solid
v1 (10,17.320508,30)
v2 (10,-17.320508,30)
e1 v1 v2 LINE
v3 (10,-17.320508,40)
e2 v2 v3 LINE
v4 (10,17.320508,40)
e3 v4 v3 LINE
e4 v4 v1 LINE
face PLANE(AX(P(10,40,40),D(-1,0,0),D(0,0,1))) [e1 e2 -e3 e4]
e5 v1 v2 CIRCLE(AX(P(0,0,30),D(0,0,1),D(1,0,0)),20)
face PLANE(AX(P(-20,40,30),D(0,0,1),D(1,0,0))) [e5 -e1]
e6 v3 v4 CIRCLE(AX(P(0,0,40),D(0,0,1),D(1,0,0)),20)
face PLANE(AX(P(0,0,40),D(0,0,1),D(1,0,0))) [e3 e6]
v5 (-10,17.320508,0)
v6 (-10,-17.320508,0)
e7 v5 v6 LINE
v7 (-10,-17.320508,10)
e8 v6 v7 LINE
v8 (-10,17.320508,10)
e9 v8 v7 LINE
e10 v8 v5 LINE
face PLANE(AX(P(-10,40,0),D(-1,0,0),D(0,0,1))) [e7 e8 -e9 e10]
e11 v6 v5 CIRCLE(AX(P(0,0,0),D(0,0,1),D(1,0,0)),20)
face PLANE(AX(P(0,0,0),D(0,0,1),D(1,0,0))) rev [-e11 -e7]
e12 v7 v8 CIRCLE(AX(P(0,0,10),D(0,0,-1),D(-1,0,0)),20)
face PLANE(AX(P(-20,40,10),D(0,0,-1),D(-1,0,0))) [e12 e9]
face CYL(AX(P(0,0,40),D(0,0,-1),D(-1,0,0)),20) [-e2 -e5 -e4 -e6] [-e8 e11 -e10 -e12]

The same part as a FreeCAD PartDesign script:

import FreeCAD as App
import Part
import Sketcher
Q = App.Units.Quantity

doc = App.newDocument("Part")
body = doc.addObject("PartDesign::Body", "Body")

# Sketch on XY plane
sketch1 = body.newObject("Sketcher::SketchObject", "Sketch")
sketch1.AttachmentSupport = (doc.getObject("XY_Plane"), [""])
sketch1.MapMode = "FlatFace"
sketch1.addGeometry(Part.Circle(App.Vector(0, 0, 0), App.Vector(0, 0, 1), 20), False)
sketch1.addConstraint([
    Sketcher.Constraint("Coincident", 0, 3, -1, 1),
    Sketcher.Constraint("Diameter", 0, Q("40 mm")),
])
pad1 = body.newObject("PartDesign::Pad", "Pad")
pad1.Profile = sketch1
pad1.Length = 40

# Sketch on XZ plane
sketch2 = body.newObject("Sketcher::SketchObject", "Sketch001")
sketch2.AttachmentSupport = (doc.getObject("XZ_Plane"), [""])
sketch2.MapMode = "FlatFace"
sketch2.addGeometry([
    Part.LineSegment(App.Vector(-20, 30, 0), App.Vector(-20, 40, 0)),  # 0
    Part.LineSegment(App.Vector(-20, 40, 0), App.Vector(10, 40, 0)),  # 1
    Part.LineSegment(App.Vector(10, 40, 0), App.Vector(10, 30, 0)),  # 2
    Part.LineSegment(App.Vector(10, 30, 0), App.Vector(-20, 30, 0)),  # 3
    Part.LineSegment(App.Vector(-20, 0, 0), App.Vector(-20, 10, 0)),  # 4
    Part.LineSegment(App.Vector(-20, 10, 0), App.Vector(-10, 10, 0)),  # 5
    Part.LineSegment(App.Vector(-10, 10, 0), App.Vector(-10, 0, 0)),  # 6
    Part.LineSegment(App.Vector(-10, 0, 0), App.Vector(-20, 0, 0)),  # 7
], False)
sketch2.addConstraint([
    Sketcher.Constraint("Coincident", 0, 2, 1, 1),
    Sketcher.Constraint("Coincident", 1, 2, 2, 1),
    Sketcher.Constraint("Coincident", 2, 2, 3, 1),
    Sketcher.Constraint("Coincident", 3, 2, 0, 1),
    Sketcher.Constraint("Coincident", 4, 2, 5, 1),
    Sketcher.Constraint("Coincident", 5, 2, 6, 1),
    Sketcher.Constraint("Coincident", 6, 2, 7, 1),
    Sketcher.Constraint("Coincident", 7, 2, 4, 1),
    Sketcher.Constraint("Vertical", 0),
    Sketcher.Constraint("Horizontal", 1),
    Sketcher.Constraint("Vertical", 2),
    Sketcher.Constraint("Horizontal", 3),
    Sketcher.Constraint("Vertical", 4),
    Sketcher.Constraint("Horizontal", 5),
    Sketcher.Constraint("Vertical", 6),
    Sketcher.Constraint("Horizontal", 7),
    Sketcher.Constraint("PointOnObject", 6, 2, -1),
    Sketcher.Constraint("Vertical", 3, 2, 4, 2),
    Sketcher.Constraint("Equal", 7, 0),
    Sketcher.Constraint("Equal", 2, 4),
    Sketcher.Constraint("DistanceX", 1, 1, 1, 2, Q("30 mm")),
    Sketcher.Constraint("DistanceX", 5, 1, 5, 2, Q("10 mm")),
    Sketcher.Constraint("DistanceX", 0, 2, -1, 1, Q("20 mm")),
    Sketcher.Constraint("DistanceY", -1, 1, 0, 2, Q("40 mm")),
])
pocket1 = body.newObject("PartDesign::Pocket", "Pocket")
pocket1.Profile = sketch2
pocket1.Type = "ThroughAll"
pocket1.Midplane = True

doc.recompute()
